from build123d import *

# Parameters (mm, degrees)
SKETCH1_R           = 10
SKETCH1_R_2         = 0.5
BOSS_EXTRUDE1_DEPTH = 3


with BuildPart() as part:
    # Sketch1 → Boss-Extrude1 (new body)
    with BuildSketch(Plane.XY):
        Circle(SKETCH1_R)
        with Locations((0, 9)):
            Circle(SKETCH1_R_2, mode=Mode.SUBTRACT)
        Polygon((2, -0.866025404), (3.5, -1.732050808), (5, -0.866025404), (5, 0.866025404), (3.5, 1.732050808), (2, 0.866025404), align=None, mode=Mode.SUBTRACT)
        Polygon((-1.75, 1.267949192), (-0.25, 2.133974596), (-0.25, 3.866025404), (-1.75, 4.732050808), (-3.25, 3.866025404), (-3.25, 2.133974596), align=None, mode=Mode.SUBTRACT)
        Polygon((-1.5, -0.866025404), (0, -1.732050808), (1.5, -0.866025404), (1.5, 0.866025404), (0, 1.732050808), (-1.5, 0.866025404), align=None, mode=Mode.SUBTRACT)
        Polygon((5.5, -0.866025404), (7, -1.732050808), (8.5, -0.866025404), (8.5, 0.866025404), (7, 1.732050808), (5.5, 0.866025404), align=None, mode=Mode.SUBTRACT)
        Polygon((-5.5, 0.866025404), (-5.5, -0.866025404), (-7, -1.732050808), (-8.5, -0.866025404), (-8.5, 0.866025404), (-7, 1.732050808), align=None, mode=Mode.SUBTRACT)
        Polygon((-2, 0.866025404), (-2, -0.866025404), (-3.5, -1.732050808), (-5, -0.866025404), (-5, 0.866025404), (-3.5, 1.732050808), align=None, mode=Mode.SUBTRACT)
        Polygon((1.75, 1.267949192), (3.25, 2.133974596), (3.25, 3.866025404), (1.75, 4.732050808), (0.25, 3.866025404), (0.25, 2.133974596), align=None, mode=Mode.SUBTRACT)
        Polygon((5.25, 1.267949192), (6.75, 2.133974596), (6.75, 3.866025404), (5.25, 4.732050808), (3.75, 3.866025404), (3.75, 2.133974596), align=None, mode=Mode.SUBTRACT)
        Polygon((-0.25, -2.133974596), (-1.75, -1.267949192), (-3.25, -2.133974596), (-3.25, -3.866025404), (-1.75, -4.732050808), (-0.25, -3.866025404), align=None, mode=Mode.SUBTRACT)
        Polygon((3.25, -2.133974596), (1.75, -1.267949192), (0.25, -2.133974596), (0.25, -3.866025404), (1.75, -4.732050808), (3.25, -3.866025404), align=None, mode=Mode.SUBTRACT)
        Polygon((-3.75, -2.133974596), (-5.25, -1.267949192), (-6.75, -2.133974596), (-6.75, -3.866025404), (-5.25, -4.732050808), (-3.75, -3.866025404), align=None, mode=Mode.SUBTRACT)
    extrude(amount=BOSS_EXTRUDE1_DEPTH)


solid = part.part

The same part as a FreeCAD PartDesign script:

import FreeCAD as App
import Part
import Sketcher
Q = App.Units.Quantity

doc = App.newDocument("Part")
body = doc.addObject("PartDesign::Body", "Body")

sketch1 = doc.addObject("Sketcher::SketchObject", "Sketch")
body.addObject(sketch1)
sketch1.AttachmentSupport = (doc.XY_Plane, [""])
sketch1.MapMode = "FlatFace"
sketch1.addGeometry([
    Part.Circle(App.Vector(0, 0, 0), App.Vector(0, 0, 1), 10),
    Part.LineSegment(App.Vector(-5.2, -1.3, 0), App.Vector(-3.8, -2.1, 0)),
    Part.LineSegment(App.Vector(-3.8, -2.1, 0), App.Vector(-3.8, -3.9, 0)),
    Part.LineSegment(App.Vector(-3.8, -3.9, 0), App.Vector(-5.2, -4.7, 0)),
    Part.LineSegment(App.Vector(-5.2, -4.7, 0), App.Vector(-6.8, -3.9, 0)),
    Part.LineSegment(App.Vector(-6.8, -3.9, 0), App.Vector(-6.8, -2.1, 0)),
    Part.LineSegment(App.Vector(-6.8, -2.1, 0), App.Vector(-5.2, -1.3, 0)),
    Part.LineSegment(App.Vector(-1.8, -1.3, 0), App.Vector(-0.2, -2.1, 0)),
    Part.LineSegment(App.Vector(-0.2, -2.1, 0), App.Vector(-0.2, -3.9, 0)),
    Part.LineSegment(App.Vector(-0.2, -3.9, 0), App.Vector(-1.8, -4.7, 0)),
    Part.LineSegment(App.Vector(-1.8, -4.7, 0), App.Vector(-3.2, -3.9, 0)),
    Part.LineSegment(App.Vector(-3.2, -3.9, 0), App.Vector(-3.2, -2.1, 0)),
    Part.LineSegment(App.Vector(-3.2, -2.1, 0), App.Vector(-1.8, -1.3, 0)),
    Part.LineSegment(App.Vector(-7, 1.7, 0), App.Vector(-5.5, 0.9, 0)),
    Part.LineSegment(App.Vector(-5.5, 0.9, 0), App.Vector(-5.5, -0.9, 0)),
    Part.LineSegment(App.Vector(-5.5, -0.9, 0), App.Vector(-7, -1.7, 0)),
    Part.LineSegment(App.Vector(-7, -1.7, 0), App.Vector(-8.5, -0.9, 0)),
    Part.LineSegment(App.Vector(-8.5, -0.9, 0), App.Vector(-8.5, 0.9, 0)),
    Part.LineSegment(App.Vector(-8.5, 0.9, 0), App.Vector(-7, 1.7, 0)),
    Part.LineSegment(App.Vector(-3.5, 1.7, 0), App.Vector(-2, 0.9, 0)),
    Part.LineSegment(App.Vector(-2, 0.9, 0), App.Vector(-2, -0.9, 0)),
    Part.LineSegment(App.Vector(-2, -0.9, 0), App.Vector(-3.5, -1.7, 0)),
    Part.LineSegment(App.Vector(-3.5, -1.7, 0), App.Vector(-5, -0.9, 0)),
    Part.LineSegment(App.Vector(-5, -0.9, 0), App.Vector(-5, 0.9, 0)),
    Part.LineSegment(App.Vector(-5, 0.9, 0), App.Vector(-3.5, 1.7, 0)),
    Part.LineSegment(App.Vector(1.8, -1.3, 0), App.Vector(3.2, -2.1, 0)),
    Part.LineSegment(App.Vector(3.2, -2.1, 0), App.Vector(3.2, -3.9, 0)),
    Part.LineSegment(App.Vector(3.2, -3.9, 0), App.Vector(1.8, -4.7, 0)),
    Part.LineSegment(App.Vector(1.8, -4.7, 0), App.Vector(0.2, -3.9, 0)),
    Part.LineSegment(App.Vector(0.2, -3.9, 0), App.Vector(0.2, -2.1, 0)),
    Part.LineSegment(App.Vector(0.2, -2.1, 0), App.Vector(1.8, -1.3, 0)),
    Part.LineSegment(App.Vector(0, -1.7, 0), App.Vector(-1.5, -0.9, 0)),
    Part.LineSegment(App.Vector(-1.5, -0.9, 0), App.Vector(-1.5, 0.9, 0)),
    Part.LineSegment(App.Vector(-1.5, 0.9, 0), App.Vector(0, 1.7, 0)),
    Part.LineSegment(App.Vector(0, 1.7, 0), App.Vector(1.5, 0.9, 0)),
    Part.LineSegment(App.Vector(1.5, 0.9, 0), App.Vector(1.5, -0.9, 0)),
    Part.LineSegment(App.Vector(1.5, -0.9, 0), App.Vector(0, -1.7, 0)),
    Part.LineSegment(App.Vector(3.5, -1.7, 0), App.Vector(2, -0.9, 0)),
    Part.LineSegment(App.Vector(2, -0.9, 0), App.Vector(2, 0.9, 0)),
    Part.LineSegment(App.Vector(2, 0.9, 0), App.Vector(3.5, 1.7, 0)),
    Part.LineSegment(App.Vector(3.5, 1.7, 0), App.Vector(5, 0.9, 0)),
    Part.LineSegment(App.Vector(5, 0.9, 0), App.Vector(5, -0.9, 0)),
    Part.LineSegment(App.Vector(5, -0.9, 0), App.Vector(3.5, -1.7, 0)),
    Part.LineSegment(App.Vector(7, -1.7, 0), App.Vector(5.5, -0.9, 0)),
    Part.LineSegment(App.Vector(5.5, -0.9, 0), App.Vector(5.5, 0.9, 0)),
    Part.LineSegment(App.Vector(5.5, 0.9, 0), App.Vector(7, 1.7, 0)),
    Part.LineSegment(App.Vector(7, 1.7, 0), App.Vector(8.5, 0.9, 0)),
    Part.LineSegment(App.Vector(8.5, 0.9, 0), App.Vector(8.5, -0.9, 0)),
    Part.LineSegment(App.Vector(8.5, -0.9, 0), App.Vector(7, -1.7, 0)),
    Part.LineSegment(App.Vector(-0.2, 2.1, 0), App.Vector(-1.8, 1.3, 0)),
    Part.LineSegment(App.Vector(-1.8, 1.3, 0), App.Vector(-3.2, 2.1, 0)),
    Part.LineSegment(App.Vector(-3.2, 2.1, 0), App.Vector(-3.2, 3.9, 0)),
    Part.LineSegment(App.Vector(-3.2, 3.9, 0), App.Vector(-1.8, 4.7, 0)),
    Part.LineSegment(App.Vector(-1.8, 4.7, 0), App.Vector(-0.2, 3.9, 0)),
    Part.LineSegment(App.Vector(-0.2, 3.9, 0), App.Vector(-0.2, 2.1, 0)),
    Part.LineSegment(App.Vector(3.2, 2.1, 0), App.Vector(1.8, 1.3, 0)),
    Part.LineSegment(App.Vector(1.8, 1.3, 0), App.Vector(0.2, 2.1, 0)),
    Part.LineSegment(App.Vector(0.2, 2.1, 0), App.Vector(0.2, 3.9, 0)),
    Part.LineSegment(App.Vector(0.2, 3.9, 0), App.Vector(1.8, 4.7, 0)),
    Part.LineSegment(App.Vector(1.8, 4.7, 0), App.Vector(3.2, 3.9, 0)),
    Part.LineSegment(App.Vector(3.2, 3.9, 0), App.Vector(3.2, 2.1, 0)),
    Part.LineSegment(App.Vector(6.8, 2.1, 0), App.Vector(5.2, 1.3, 0)),
    Part.LineSegment(App.Vector(5.2, 1.3, 0), App.Vector(3.8, 2.1, 0)),
    Part.LineSegment(App.Vector(3.8, 2.1, 0), App.Vector(3.8, 3.9, 0)),
    Part.LineSegment(App.Vector(3.8, 3.9, 0), App.Vector(5.2, 4.7, 0)),
    Part.LineSegment(App.Vector(5.2, 4.7, 0), App.Vector(6.8, 3.9, 0)),
    Part.LineSegment(App.Vector(6.8, 3.9, 0), App.Vector(6.8, 2.1, 0)),
    Part.Circle(App.Vector(0, 9, 0), App.Vector(0, 0, 1), 0.5),
], False)
sketch1.addConstraint([
    Sketcher.Constraint("Coincident", 1, 2, 2, 1),
    Sketcher.Constraint("Coincident", 2, 2, 3, 1),
    Sketcher.Constraint("Coincident", 3, 2, 4, 1),
    Sketcher.Constraint("Coincident", 4, 2, 5, 1),
    Sketcher.Constraint("Coincident", 5, 2, 6, 1),
    Sketcher.Constraint("Coincident", 6, 2, 1, 1),
    Sketcher.Constraint("Coincident", 7, 2, 8, 1),
    Sketcher.Constraint("Coincident", 8, 2, 9, 1),
    Sketcher.Constraint("Coincident", 9, 2, 10, 1),
    Sketcher.Constraint("Coincident", 10, 2, 11, 1),
    Sketcher.Constraint("Coincident", 11, 2, 12, 1),
    Sketcher.Constraint("Coincident", 12, 2, 7, 1),
    Sketcher.Constraint("Coincident", 13, 2, 14, 1),
    Sketcher.Constraint("Coincident", 14, 2, 15, 1),
    Sketcher.Constraint("Coincident", 15, 2, 16, 1),
    Sketcher.Constraint("Coincident", 16, 2, 17, 1),
    Sketcher.Constraint("Coincident", 17, 2, 18, 1),
    Sketcher.Constraint("Coincident", 18, 2, 13, 1),
    Sketcher.Constraint("Coincident", 19, 2, 20, 1),
    Sketcher.Constraint("Coincident", 20, 2, 21, 1),
    Sketcher.Constraint("Coincident", 21, 2, 22, 1),
    Sketcher.Constraint("Coincident", 22, 2, 23, 1),
    Sketcher.Constraint("Coincident", 23, 2, 24, 1),
    Sketcher.Constraint("Coincident", 24, 2, 19, 1),
    Sketcher.Constraint("Coincident", 25, 2, 26, 1),
    Sketcher.Constraint("Coincident", 26, 2, 27, 1),
    Sketcher.Constraint("Coincident", 27, 2, 28, 1),
    Sketcher.Constraint("Coincident", 28, 2, 29, 1),
    Sketcher.Constraint("Coincident", 29, 2, 30, 1),
    Sketcher.Constraint("Coincident", 30, 2, 25, 1),
    Sketcher.Constraint("Coincident", 31, 2, 32, 1),
    Sketcher.Constraint("Coincident", 32, 2, 33, 1),
    Sketcher.Constraint("Coincident", 33, 2, 34, 1),
    Sketcher.Constraint("Coincident", 34, 2, 35, 1),
    Sketcher.Constraint("Coincident", 35, 2, 36, 1),
    Sketcher.Constraint("Coincident", 36, 2, 31, 1),
    Sketcher.Constraint("Coincident", 37, 2, 38, 1),
    Sketcher.Constraint("Coincident", 38, 2, 39, 1),
    Sketcher.Constraint("Coincident", 39, 2, 40, 1),
    Sketcher.Constraint("Coincident", 40, 2, 41, 1),
    Sketcher.Constraint("Coincident", 41, 2, 42, 1),
    Sketcher.Constraint("Coincident", 42, 2, 37, 1),
    Sketcher.Constraint("Coincident", 43, 2, 44, 1),
    Sketcher.Constraint("Coincident", 44, 2, 45, 1),
    Sketcher.Constraint("Coincident", 45, 2, 46, 1),
    Sketcher.Constraint("Coincident", 46, 2, 47, 1),
    Sketcher.Constraint("Coincident", 47, 2, 48, 1),
    Sketcher.Constraint("Coincident", 48, 2, 43, 1),
    Sketcher.Constraint("Coincident", 49, 2, 50, 1),
    Sketcher.Constraint("Coincident", 50, 2, 51, 1),
    Sketcher.Constraint("Coincident", 51, 2, 52, 1),
    Sketcher.Constraint("Coincident", 52, 2, 53, 1),
    Sketcher.Constraint("Coincident", 53, 2, 54, 1),
    Sketcher.Constraint("Coincident", 54, 2, 49, 1),
    Sketcher.Constraint("Coincident", 55, 2, 56, 1),
    Sketcher.Constraint("Coincident", 56, 2, 57, 1),
    Sketcher.Constraint("Coincident", 57, 2, 58, 1),
    Sketcher.Constraint("Coincident", 58, 2, 59, 1),
    Sketcher.Constraint("Coincident", 59, 2, 60, 1),
    Sketcher.Constraint("Coincident", 60, 2, 55, 1),
    Sketcher.Constraint("Coincident", 61, 2, 62, 1),
    Sketcher.Constraint("Coincident", 62, 2, 63, 1),
    Sketcher.Constraint("Coincident", 63, 2, 64, 1),
    Sketcher.Constraint("Coincident", 64, 2, 65, 1),
    Sketcher.Constraint("Coincident", 65, 2, 66, 1),
    Sketcher.Constraint("Coincident", 66, 2, 61, 1),
    Sketcher.Constraint("Vertical", 2),
    Sketcher.Constraint("Vertical", 5),
    Sketcher.Constraint("Vertical", 8),
    Sketcher.Constraint("Vertical", 11),
    Sketcher.Constraint("Vertical", 14),
    Sketcher.Constraint("Vertical", 17),
    Sketcher.Constraint("Vertical", 20),
    Sketcher.Constraint("Vertical", 23),
    Sketcher.Constraint("Vertical", 26),
    Sketcher.Constraint("Vertical", 29),
    Sketcher.Constraint("Vertical", 32),
    Sketcher.Constraint("Vertical", 35),
    Sketcher.Constraint("Vertical", 38),
    Sketcher.Constraint("Vertical", 41),
    Sketcher.Constraint("Vertical", 44),
    Sketcher.Constraint("Vertical", 47),
    Sketcher.Constraint("Vertical", 51),
    Sketcher.Constraint("Vertical", 54),
    Sketcher.Constraint("Vertical", 57),
    Sketcher.Constraint("Vertical", 60),
    Sketcher.Constraint("Vertical", 63),
    Sketcher.Constraint("Vertical", 66),
    Sketcher.Constraint("Coincident", 0, 3, -1, 1),
    Sketcher.Constraint("Symmetric", 31, 2, 34, 2, -1, 1),
    Sketcher.Constraint("Symmetric", 33, 2, 36, 2, -1, 1),
    Sketcher.Constraint("Symmetric", 19, 2, 37, 2, -1, 1),
    Sketcher.Constraint("Symmetric", 21, 2, 39, 2, -1, 1),
    Sketcher.Constraint("Symmetric", 22, 2, 40, 2, -1, 1),
    Sketcher.Constraint("Symmetric", 24, 2, 42, 2, -1, 1),
    Sketcher.Constraint("Symmetric", 13, 2, 43, 2, -1, 1),
    Sketcher.Constraint("Symmetric", 15, 2, 45, 2, -1, 1),
    Sketcher.Constraint("Symmetric", 16, 2, 46, 2, -1, 1),
    Sketcher.Constraint("Symmetric", 18, 2, 48, 2, -1, 1),
    Sketcher.Constraint("Symmetric", 30, 2, 49, 2, -1, 1),
    Sketcher.Constraint("Symmetric", 25, 2, 50, 2, -1, 1),
    Sketcher.Constraint("Symmetric", 27, 2, 52, 2, -1, 1),
    Sketcher.Constraint("Symmetric", 28, 2, 53, 2, -1, 1),
    Sketcher.Constraint("Symmetric", 12, 2, 55, 2, -1, 1),
    Sketcher.Constraint("Symmetric", 7, 2, 56, 2, -1, 1),
    Sketcher.Constraint("Symmetric", 9, 2, 58, 2, -1, 1),
    Sketcher.Constraint("Symmetric", 10, 2, 59, 2, -1, 1),
    Sketcher.Constraint("Symmetric", 6, 2, 61, 2, -1, 1),
    Sketcher.Constraint("Symmetric", 1, 2, 62, 2, -1, 1),
    Sketcher.Constraint("Symmetric", 3, 2, 64, 2, -1, 1),
    Sketcher.Constraint("Symmetric", 4, 2, 65, 2, -1, 1),
    Sketcher.Constraint("Symmetric", 11, 2, 25, 2, -2),
    Sketcher.Constraint("Symmetric", 9, 2, 27, 2, -2),
    Sketcher.Constraint("Symmetric", 8, 2, 28, 2, -2),
    Sketcher.Constraint("Symmetric", 12, 2, 30, 2, -2),
    Sketcher.Constraint("Symmetric", 24, 2, 39, 2, -2),
    Sketcher.Constraint("Symmetric", 18, 2, 45, 2, -2),
    Sketcher.Constraint("PointOnObject", 67, 3, -2),
    Sketcher.Constraint("PointOnObject", 33, 2, -2),
    Sketcher.Constraint("Parallel", 1, 4),
    Sketcher.Constraint("Parallel", 3, 6),
    Sketcher.Constraint("Parallel", 4, 7),
    Sketcher.Constraint("Parallel", 6, 9),
    Sketcher.Constraint("Parallel", 7, 10),
    Sketcher.Constraint("Parallel", 9, 12),
    Sketcher.Constraint("Parallel", 10, 13),
    Sketcher.Constraint("Parallel", 12, 15),
    Sketcher.Constraint("Parallel", 13, 16),
    Sketcher.Constraint("Parallel", 15, 18),
    Sketcher.Constraint("Parallel", 16, 19),
    Sketcher.Constraint("Parallel", 18, 21),
    Sketcher.Constraint("Parallel", 19, 22),
    Sketcher.Constraint("Parallel", 21, 24),
    Sketcher.Constraint("Parallel", 22, 25),
    Sketcher.Constraint("Parallel", 24, 27),
    Sketcher.Constraint("Parallel", 27, 30),
    Sketcher.Constraint("Parallel", 28, 31),
    Sketcher.Constraint("Parallel", 30, 33),
    Sketcher.Constraint("Parallel", 33, 36),
    Sketcher.Constraint("Parallel", 36, 39),
    Sketcher.Constraint("Parallel", 39, 42),
    Sketcher.Constraint("Parallel", 42, 45),
    Sketcher.Constraint("Parallel", 45, 48),
    Sketcher.Constraint("Parallel", 48, 49),
    Sketcher.Constraint("Parallel", 49, 52),
    Sketcher.Constraint("Parallel", 52, 55),
    Sketcher.Constraint("Parallel", 55, 58),
    Sketcher.Constraint("Parallel", 58, 61),
    Sketcher.Constraint("Parallel", 61, 64),
    Sketcher.Constraint("Horizontal", 2, 2, 4, 2),
    Sketcher.Constraint("Horizontal", 1, 2, 5, 2),
    Sketcher.Constraint("Horizontal", 5, 2, 7, 2),
    Sketcher.Constraint("Horizontal", 4, 2, 8, 2),
    Sketcher.Constraint("Horizontal", 3, 2, 9, 2),
    Sketcher.Constraint("Horizontal", 8, 2, 10, 2),
    Sketcher.Constraint("Horizontal", 7, 2, 11, 2),
    Sketcher.Constraint("Horizontal", 14, 2, 16, 2),
    Sketcher.Constraint("Horizontal", 17, 2, 19, 2),
    Sketcher.Constraint("Horizontal", 15, 2, 21, 2),
    Sketcher.Constraint("Horizontal", 20, 2, 22, 2),
    Sketcher.Constraint("Horizontal", 22, 2, 31, 2),
    Sketcher.Constraint("Horizontal", 24, 2, 33, 2),
    Sketcher.Constraint("Equal", 11, 14),
    Sketcher.Constraint("Equal", 12, 13),
    Sketcher.Constraint("Diameter", 0, 20.0),
    Sketcher.Constraint("Diameter", 67, 1.0),
    Sketcher.Constraint("Angle", 1, Q("-30 deg")),
    Sketcher.Constraint("DistanceY", -1, 1, 67, 3, 9.0),
    Sketcher.Constraint("DistanceX", 15, 2, -1, 1, 7.0),
    Sketcher.Constraint("DistanceX", 19, 2, -1, 1, 2.0),
    Sketcher.Constraint("DistanceX", 22, 2, -1, 1, 5.0),
    Sketcher.Constraint("DistanceX", 1, 2, -1, 1, 3.75),
    Sketcher.Constraint("DistanceX", 7, 2, -1, 1, 0.25),
    Sketcher.Constraint("DistanceY", 2, 2, 2, 1, 1.732051),
    Sketcher.Constraint("DistanceY", 3, 2, -1, 1, 4.732051),
])
pad1 = doc.addObject("PartDesign::Pad", "Pad")
body.addObject(pad1)
pad1.Profile = sketch1
pad1.Length = 3

doc.recompute()
